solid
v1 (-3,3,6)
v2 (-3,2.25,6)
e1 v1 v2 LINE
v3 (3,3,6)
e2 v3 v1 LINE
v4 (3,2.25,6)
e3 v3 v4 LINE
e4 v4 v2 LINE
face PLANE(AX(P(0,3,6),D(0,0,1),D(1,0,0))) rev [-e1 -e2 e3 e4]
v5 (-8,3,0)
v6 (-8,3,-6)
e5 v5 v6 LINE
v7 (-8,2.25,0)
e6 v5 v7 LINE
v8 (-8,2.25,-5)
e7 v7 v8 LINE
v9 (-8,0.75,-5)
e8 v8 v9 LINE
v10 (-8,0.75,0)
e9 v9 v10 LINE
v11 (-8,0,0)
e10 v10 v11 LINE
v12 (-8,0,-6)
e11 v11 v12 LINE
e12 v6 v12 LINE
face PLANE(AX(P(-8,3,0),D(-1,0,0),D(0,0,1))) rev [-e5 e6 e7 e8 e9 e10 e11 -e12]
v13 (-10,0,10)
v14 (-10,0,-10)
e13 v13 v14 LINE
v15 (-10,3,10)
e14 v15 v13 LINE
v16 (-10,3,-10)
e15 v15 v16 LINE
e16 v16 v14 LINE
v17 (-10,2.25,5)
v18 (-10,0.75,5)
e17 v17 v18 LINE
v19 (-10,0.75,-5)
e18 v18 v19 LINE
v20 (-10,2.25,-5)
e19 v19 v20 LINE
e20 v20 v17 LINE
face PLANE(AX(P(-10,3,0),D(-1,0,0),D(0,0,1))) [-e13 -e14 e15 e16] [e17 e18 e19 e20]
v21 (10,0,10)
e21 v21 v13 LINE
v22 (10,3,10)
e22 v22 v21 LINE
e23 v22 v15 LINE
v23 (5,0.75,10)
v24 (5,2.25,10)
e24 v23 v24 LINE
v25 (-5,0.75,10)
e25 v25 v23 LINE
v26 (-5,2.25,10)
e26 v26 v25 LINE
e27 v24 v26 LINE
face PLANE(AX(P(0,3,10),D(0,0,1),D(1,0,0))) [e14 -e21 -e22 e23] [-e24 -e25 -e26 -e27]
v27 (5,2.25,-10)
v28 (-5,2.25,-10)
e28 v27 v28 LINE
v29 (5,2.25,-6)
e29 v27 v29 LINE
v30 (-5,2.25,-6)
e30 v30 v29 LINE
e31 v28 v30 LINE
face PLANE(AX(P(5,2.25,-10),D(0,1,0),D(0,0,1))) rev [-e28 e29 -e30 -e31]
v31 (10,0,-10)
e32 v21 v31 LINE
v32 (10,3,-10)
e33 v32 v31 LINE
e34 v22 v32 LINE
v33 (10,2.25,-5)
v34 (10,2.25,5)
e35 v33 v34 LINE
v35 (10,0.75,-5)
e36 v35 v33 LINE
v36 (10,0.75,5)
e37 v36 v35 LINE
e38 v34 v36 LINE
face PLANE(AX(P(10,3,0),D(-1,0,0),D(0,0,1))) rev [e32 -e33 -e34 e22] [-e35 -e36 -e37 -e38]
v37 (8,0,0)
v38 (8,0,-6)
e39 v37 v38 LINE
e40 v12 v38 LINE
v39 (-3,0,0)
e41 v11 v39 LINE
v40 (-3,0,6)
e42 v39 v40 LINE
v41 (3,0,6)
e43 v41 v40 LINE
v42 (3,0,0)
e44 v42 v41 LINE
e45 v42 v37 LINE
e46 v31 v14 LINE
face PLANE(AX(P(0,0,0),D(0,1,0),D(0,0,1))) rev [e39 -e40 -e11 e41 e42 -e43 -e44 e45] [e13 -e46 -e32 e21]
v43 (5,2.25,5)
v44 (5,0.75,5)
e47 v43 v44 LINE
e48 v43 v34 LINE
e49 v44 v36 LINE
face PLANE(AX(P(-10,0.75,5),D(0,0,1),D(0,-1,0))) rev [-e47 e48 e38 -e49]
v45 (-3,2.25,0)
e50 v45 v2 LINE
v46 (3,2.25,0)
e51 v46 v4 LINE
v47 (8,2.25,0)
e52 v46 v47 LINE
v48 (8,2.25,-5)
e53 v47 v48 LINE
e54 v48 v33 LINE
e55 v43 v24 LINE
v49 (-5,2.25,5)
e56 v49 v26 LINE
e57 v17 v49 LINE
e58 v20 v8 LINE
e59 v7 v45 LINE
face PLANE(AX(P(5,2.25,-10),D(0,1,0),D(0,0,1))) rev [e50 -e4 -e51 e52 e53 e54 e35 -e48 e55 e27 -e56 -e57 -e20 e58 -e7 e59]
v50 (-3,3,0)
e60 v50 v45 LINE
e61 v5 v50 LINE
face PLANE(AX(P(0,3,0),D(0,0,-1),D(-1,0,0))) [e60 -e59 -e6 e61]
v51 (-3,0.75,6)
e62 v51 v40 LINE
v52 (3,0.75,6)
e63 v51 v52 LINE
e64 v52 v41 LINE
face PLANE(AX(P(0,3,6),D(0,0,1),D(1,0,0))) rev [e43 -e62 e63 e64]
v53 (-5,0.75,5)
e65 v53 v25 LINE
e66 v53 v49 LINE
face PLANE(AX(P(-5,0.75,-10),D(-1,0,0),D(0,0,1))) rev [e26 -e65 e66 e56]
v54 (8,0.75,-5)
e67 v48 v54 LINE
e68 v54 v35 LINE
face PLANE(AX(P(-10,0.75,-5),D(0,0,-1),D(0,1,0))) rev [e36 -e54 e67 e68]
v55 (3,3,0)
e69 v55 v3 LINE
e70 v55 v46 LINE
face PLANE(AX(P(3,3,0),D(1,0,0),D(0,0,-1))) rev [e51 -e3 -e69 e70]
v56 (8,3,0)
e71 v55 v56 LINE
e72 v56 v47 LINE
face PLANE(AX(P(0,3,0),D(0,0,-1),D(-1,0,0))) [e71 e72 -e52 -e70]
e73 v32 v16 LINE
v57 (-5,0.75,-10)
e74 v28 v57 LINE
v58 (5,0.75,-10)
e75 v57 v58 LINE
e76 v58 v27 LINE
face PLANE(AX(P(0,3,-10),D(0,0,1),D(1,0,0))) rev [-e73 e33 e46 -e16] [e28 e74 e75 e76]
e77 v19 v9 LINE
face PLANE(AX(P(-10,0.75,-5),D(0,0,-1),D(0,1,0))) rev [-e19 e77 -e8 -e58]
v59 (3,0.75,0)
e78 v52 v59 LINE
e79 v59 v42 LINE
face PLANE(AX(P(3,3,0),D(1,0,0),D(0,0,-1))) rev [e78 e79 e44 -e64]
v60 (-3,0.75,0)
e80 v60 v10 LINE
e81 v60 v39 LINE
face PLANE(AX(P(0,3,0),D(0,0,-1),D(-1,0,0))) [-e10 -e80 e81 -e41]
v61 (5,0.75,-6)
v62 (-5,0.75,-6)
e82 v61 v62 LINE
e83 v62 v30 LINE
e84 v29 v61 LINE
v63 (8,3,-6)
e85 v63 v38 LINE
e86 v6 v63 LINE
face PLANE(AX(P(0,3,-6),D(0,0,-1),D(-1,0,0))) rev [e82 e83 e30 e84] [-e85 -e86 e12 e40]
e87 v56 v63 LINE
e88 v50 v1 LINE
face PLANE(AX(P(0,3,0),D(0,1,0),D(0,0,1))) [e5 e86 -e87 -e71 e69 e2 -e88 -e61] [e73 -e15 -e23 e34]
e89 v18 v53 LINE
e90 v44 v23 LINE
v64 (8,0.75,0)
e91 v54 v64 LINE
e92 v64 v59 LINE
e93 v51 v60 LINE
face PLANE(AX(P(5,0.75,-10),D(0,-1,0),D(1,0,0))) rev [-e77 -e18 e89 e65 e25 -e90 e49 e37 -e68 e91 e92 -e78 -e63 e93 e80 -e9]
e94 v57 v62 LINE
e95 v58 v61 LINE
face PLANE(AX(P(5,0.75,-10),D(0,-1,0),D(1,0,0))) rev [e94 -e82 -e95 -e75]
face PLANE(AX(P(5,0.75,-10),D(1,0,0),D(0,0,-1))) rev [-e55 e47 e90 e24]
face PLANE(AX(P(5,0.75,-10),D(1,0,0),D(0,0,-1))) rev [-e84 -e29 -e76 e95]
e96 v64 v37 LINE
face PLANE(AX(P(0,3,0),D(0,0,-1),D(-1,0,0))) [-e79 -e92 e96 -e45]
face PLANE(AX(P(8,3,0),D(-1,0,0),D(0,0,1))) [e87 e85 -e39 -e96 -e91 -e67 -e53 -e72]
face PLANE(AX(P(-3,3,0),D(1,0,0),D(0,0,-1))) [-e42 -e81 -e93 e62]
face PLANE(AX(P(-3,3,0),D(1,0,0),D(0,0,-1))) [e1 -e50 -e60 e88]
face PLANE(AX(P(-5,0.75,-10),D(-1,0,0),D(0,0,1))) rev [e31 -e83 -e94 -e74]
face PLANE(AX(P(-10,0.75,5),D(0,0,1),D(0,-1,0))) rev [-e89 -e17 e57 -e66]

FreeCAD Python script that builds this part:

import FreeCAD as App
import Part
import Sketcher
from FreeCAD import Vector

doc = App.newDocument("Part")
body = doc.addObject("PartDesign::Body", "Body")

# Sketch on XZ plane
sketch1 = doc.addObject("Sketcher::SketchObject", "Sketch")
body.addObject(sketch1)
sketch1.AttachmentSupport = (doc.XZ_Plane, [""])
sketch1.MapMode = "FlatFace"
sketch1.addGeometry(Part.LineSegment(Vector(-10, -10, 0), Vector(-10, 10, 0)), False)
sketch1.addGeometry(Part.LineSegment(Vector(-10, 10, 0), Vector(10, 10, 0)), False)
sketch1.addGeometry(Part.LineSegment(Vector(10, 10, 0), Vector(10, -10, 0)), False)
sketch1.addGeometry(Part.LineSegment(Vector(10, -10, 0), Vector(-10, -10, 0)), False)
sketch1.addGeometry(Part.LineSegment(Vector(-3, 6, 0), Vector(-3, 0, 0)), False)
sketch1.addGeometry(Part.LineSegment(Vector(-3, 0, 0), Vector(-8, 0, 0)), False)
sketch1.addGeometry(Part.LineSegment(Vector(-8, 0, 0), Vector(-8, -6, 0)), False)
sketch1.addGeometry(Part.LineSegment(Vector(-8, -6, 0), Vector(8, -6, 0)), False)
sketch1.addGeometry(Part.LineSegment(Vector(8, -6, 0), Vector(8, 0, 0)), False)
sketch1.addGeometry(Part.LineSegment(Vector(8, 0, 0), Vector(3, 0, 0)), False)
sketch1.addGeometry(Part.LineSegment(Vector(3, 0, 0), Vector(3, 6, 0)), False)
sketch1.addGeometry(Part.LineSegment(Vector(3, 6, 0), Vector(-3, 6, 0)), False)
sketch1.addConstraint(Sketcher.Constraint("Coincident", 0, 2, 1, 1))
sketch1.addConstraint(Sketcher.Constraint("Coincident", 1, 2, 2, 1))
sketch1.addConstraint(Sketcher.Constraint("Coincident", 2, 2, 3, 1))
sketch1.addConstraint(Sketcher.Constraint("Coincident", 3, 2, 0, 1))
sketch1.addConstraint(Sketcher.Constraint("Coincident", 4, 2, 5, 1))
sketch1.addConstraint(Sketcher.Constraint("Coincident", 5, 2, 6, 1))
sketch1.addConstraint(Sketcher.Constraint("Coincident", 6, 2, 7, 1))
sketch1.addConstraint(Sketcher.Constraint("Coincident", 7, 2, 8, 1))
sketch1.addConstraint(Sketcher.Constraint("Coincident", 8, 2, 9, 1))
sketch1.addConstraint(Sketcher.Constraint("Coincident", 9, 2, 10, 1))
sketch1.addConstraint(Sketcher.Constraint("Coincident", 10, 2, 11, 1))
sketch1.addConstraint(Sketcher.Constraint("Coincident", 11, 2, 4, 1))
sketch1.addConstraint(Sketcher.Constraint("Vertical", 0))
sketch1.addConstraint(Sketcher.Constraint("Horizontal", 1))
sketch1.addConstraint(Sketcher.Constraint("Vertical", 2))
sketch1.addConstraint(Sketcher.Constraint("Horizontal", 3))
sketch1.addConstraint(Sketcher.Constraint("Vertical", 4))
sketch1.addConstraint(Sketcher.Constraint("Horizontal", 5))
sketch1.addConstraint(Sketcher.Constraint("Vertical", 6))
sketch1.addConstraint(Sketcher.Constraint("Horizontal", 7))
sketch1.addConstraint(Sketcher.Constraint("Vertical", 8))
sketch1.addConstraint(Sketcher.Constraint("Horizontal", 9))
sketch1.addConstraint(Sketcher.Constraint("Vertical", 10))
sketch1.addConstraint(Sketcher.Constraint("Horizontal", 11))
sketch1.addConstraint(Sketcher.Constraint("Symmetric", 0, 2, 2, 2, -1, 1))
sketch1.addConstraint(Sketcher.Constraint("Symmetric", 5, 2, 8, 2, -1, 1))
sketch1.addConstraint(Sketcher.Constraint("Symmetric", 4, 2, 9, 2, -2))
sketch1.addConstraint(Sketcher.Constraint("Equal", 3, 0))
sketch1.addConstraint(Sketcher.Constraint("Equal", 11, 4))
sketch1.addConstraint(Sketcher.Constraint("Equal", 4, 6))
sketch1.addConstraint(Sketcher.Constraint("DistanceX", 1, 1, 1, 2, 20.0))
sketch1.addConstraint(Sketcher.Constraint("DistanceX", 5, 2, 5, 1, 5.0))
sketch1.addConstraint(Sketcher.Constraint("DistanceX", 7, 1, 7, 2, 16.0))
pad1 = doc.addObject("PartDesign::Pad", "Pad")
body.addObject(pad1)
pad1.Profile = sketch1
pad1.Length = 3
pad1.Reversed = True

# Sketch on XY plane
sketch2 = doc.addObject("Sketcher::SketchObject", "Sketch001")
body.addObject(sketch2)
sketch2.AttachmentSupport = (doc.XY_Plane, [""])
sketch2.MapMode = "FlatFace"
sketch2.AttachmentOffset = App.Placement(Vector(0, 0, 10), App.Rotation())
sketch2.addGeometry(Part.LineSegment(Vector(-5, 2.2, 0), Vector(-5, 0.8, 0)), False)
sketch2.addGeometry(Part.LineSegment(Vector(-5, 0.8, 0), Vector(5, 0.8, 0)), False)
sketch2.addGeometry(Part.LineSegment(Vector(5, 0.8, 0), Vector(5, 2.2, 0)), False)
sketch2.addGeometry(Part.LineSegment(Vector(5, 2.2, 0), Vector(-5, 2.2, 0)), False)
sketch2.addConstraint(Sketcher.Constraint("Coincident", 0, 2, 1, 1))
sketch2.addConstraint(Sketcher.Constraint("Coincident", 1, 2, 2, 1))
sketch2.addConstraint(Sketcher.Constraint("Coincident", 2, 2, 3, 1))
sketch2.addConstraint(Sketcher.Constraint("Coincident", 3, 2, 0, 1))
sketch2.addConstraint(Sketcher.Constraint("Vertical", 0))
sketch2.addConstraint(Sketcher.Constraint("Horizontal", 1))
sketch2.addConstraint(Sketcher.Constraint("Vertical", 2))
sketch2.addConstraint(Sketcher.Constraint("Horizontal", 3))
sketch2.addConstraint(Sketcher.Constraint("DistanceX", 1, 1, 1, 2, 10.0))
sketch2.addConstraint(Sketcher.Constraint("DistanceY", 0, 2, 0, 1, 1.5))
sketch2.addConstraint(Sketcher.Constraint("DistanceX", 0, 2, -1, 1, 5.0))
sketch2.addConstraint(Sketcher.Constraint("DistanceY", -1, 1, 0, 2, 0.75))
pocket1 = doc.addObject("PartDesign::Pocket", "Pocket")
body.addObject(pocket1)
pocket1.Profile = sketch2
pocket1.Type = "ThroughAll"

# Sketch on YZ plane
sketch3 = doc.addObject("Sketcher::SketchObject", "Sketch002")
body.addObject(sketch3)
sketch3.AttachmentSupport = (doc.YZ_Plane, [""])
sketch3.MapMode = "FlatFace"
sketch3.AttachmentOffset = App.Placement(Vector(0, 0, 10), App.Rotation())
sketch3.addGeometry(Part.LineSegment(Vector(2.2, 5, 0), Vector(0.8, 5, 0)), False)
sketch3.addGeometry(Part.LineSegment(Vector(0.8, 5, 0), Vector(0.8, -5, 0)), False)
sketch3.addGeometry(Part.LineSegment(Vector(0.8, -5, 0), Vector(2.2, -5, 0)), False)
sketch3.addGeometry(Part.LineSegment(Vector(2.2, -5, 0), Vector(2.2, 5, 0)), False)
sketch3.addConstraint(Sketcher.Constraint("Coincident", 0, 2, 1, 1))
sketch3.addConstraint(Sketcher.Constraint("Coincident", 1, 2, 2, 1))
sketch3.addConstraint(Sketcher.Constraint("Coincident", 2, 2, 3, 1))
sketch3.addConstraint(Sketcher.Constraint("Coincident", 3, 2, 0, 1))
sketch3.addConstraint(Sketcher.Constraint("Horizontal", 0))
sketch3.addConstraint(Sketcher.Constraint("Vertical", 1))
sketch3.addConstraint(Sketcher.Constraint("Horizontal", 2))
sketch3.addConstraint(Sketcher.Constraint("Vertical", 3))
sketch3.addConstraint(Sketcher.Constraint("DistanceY", 1, 2, 1, 1, 10.0))
sketch3.addConstraint(Sketcher.Constraint("DistanceX", 0, 2, 0, 1, 1.5))
sketch3.addConstraint(Sketcher.Constraint("DistanceY", -1, 1, 0, 2, 5.0))
sketch3.addConstraint(Sketcher.Constraint("DistanceX", -1, 1, 0, 2, 0.75))
pocket2 = doc.addObject("PartDesign::Pocket", "Pocket001")
body.addObject(pocket2)
pocket2.Profile = sketch3
pocket2.Type = "ThroughAll"

doc.recompute()
